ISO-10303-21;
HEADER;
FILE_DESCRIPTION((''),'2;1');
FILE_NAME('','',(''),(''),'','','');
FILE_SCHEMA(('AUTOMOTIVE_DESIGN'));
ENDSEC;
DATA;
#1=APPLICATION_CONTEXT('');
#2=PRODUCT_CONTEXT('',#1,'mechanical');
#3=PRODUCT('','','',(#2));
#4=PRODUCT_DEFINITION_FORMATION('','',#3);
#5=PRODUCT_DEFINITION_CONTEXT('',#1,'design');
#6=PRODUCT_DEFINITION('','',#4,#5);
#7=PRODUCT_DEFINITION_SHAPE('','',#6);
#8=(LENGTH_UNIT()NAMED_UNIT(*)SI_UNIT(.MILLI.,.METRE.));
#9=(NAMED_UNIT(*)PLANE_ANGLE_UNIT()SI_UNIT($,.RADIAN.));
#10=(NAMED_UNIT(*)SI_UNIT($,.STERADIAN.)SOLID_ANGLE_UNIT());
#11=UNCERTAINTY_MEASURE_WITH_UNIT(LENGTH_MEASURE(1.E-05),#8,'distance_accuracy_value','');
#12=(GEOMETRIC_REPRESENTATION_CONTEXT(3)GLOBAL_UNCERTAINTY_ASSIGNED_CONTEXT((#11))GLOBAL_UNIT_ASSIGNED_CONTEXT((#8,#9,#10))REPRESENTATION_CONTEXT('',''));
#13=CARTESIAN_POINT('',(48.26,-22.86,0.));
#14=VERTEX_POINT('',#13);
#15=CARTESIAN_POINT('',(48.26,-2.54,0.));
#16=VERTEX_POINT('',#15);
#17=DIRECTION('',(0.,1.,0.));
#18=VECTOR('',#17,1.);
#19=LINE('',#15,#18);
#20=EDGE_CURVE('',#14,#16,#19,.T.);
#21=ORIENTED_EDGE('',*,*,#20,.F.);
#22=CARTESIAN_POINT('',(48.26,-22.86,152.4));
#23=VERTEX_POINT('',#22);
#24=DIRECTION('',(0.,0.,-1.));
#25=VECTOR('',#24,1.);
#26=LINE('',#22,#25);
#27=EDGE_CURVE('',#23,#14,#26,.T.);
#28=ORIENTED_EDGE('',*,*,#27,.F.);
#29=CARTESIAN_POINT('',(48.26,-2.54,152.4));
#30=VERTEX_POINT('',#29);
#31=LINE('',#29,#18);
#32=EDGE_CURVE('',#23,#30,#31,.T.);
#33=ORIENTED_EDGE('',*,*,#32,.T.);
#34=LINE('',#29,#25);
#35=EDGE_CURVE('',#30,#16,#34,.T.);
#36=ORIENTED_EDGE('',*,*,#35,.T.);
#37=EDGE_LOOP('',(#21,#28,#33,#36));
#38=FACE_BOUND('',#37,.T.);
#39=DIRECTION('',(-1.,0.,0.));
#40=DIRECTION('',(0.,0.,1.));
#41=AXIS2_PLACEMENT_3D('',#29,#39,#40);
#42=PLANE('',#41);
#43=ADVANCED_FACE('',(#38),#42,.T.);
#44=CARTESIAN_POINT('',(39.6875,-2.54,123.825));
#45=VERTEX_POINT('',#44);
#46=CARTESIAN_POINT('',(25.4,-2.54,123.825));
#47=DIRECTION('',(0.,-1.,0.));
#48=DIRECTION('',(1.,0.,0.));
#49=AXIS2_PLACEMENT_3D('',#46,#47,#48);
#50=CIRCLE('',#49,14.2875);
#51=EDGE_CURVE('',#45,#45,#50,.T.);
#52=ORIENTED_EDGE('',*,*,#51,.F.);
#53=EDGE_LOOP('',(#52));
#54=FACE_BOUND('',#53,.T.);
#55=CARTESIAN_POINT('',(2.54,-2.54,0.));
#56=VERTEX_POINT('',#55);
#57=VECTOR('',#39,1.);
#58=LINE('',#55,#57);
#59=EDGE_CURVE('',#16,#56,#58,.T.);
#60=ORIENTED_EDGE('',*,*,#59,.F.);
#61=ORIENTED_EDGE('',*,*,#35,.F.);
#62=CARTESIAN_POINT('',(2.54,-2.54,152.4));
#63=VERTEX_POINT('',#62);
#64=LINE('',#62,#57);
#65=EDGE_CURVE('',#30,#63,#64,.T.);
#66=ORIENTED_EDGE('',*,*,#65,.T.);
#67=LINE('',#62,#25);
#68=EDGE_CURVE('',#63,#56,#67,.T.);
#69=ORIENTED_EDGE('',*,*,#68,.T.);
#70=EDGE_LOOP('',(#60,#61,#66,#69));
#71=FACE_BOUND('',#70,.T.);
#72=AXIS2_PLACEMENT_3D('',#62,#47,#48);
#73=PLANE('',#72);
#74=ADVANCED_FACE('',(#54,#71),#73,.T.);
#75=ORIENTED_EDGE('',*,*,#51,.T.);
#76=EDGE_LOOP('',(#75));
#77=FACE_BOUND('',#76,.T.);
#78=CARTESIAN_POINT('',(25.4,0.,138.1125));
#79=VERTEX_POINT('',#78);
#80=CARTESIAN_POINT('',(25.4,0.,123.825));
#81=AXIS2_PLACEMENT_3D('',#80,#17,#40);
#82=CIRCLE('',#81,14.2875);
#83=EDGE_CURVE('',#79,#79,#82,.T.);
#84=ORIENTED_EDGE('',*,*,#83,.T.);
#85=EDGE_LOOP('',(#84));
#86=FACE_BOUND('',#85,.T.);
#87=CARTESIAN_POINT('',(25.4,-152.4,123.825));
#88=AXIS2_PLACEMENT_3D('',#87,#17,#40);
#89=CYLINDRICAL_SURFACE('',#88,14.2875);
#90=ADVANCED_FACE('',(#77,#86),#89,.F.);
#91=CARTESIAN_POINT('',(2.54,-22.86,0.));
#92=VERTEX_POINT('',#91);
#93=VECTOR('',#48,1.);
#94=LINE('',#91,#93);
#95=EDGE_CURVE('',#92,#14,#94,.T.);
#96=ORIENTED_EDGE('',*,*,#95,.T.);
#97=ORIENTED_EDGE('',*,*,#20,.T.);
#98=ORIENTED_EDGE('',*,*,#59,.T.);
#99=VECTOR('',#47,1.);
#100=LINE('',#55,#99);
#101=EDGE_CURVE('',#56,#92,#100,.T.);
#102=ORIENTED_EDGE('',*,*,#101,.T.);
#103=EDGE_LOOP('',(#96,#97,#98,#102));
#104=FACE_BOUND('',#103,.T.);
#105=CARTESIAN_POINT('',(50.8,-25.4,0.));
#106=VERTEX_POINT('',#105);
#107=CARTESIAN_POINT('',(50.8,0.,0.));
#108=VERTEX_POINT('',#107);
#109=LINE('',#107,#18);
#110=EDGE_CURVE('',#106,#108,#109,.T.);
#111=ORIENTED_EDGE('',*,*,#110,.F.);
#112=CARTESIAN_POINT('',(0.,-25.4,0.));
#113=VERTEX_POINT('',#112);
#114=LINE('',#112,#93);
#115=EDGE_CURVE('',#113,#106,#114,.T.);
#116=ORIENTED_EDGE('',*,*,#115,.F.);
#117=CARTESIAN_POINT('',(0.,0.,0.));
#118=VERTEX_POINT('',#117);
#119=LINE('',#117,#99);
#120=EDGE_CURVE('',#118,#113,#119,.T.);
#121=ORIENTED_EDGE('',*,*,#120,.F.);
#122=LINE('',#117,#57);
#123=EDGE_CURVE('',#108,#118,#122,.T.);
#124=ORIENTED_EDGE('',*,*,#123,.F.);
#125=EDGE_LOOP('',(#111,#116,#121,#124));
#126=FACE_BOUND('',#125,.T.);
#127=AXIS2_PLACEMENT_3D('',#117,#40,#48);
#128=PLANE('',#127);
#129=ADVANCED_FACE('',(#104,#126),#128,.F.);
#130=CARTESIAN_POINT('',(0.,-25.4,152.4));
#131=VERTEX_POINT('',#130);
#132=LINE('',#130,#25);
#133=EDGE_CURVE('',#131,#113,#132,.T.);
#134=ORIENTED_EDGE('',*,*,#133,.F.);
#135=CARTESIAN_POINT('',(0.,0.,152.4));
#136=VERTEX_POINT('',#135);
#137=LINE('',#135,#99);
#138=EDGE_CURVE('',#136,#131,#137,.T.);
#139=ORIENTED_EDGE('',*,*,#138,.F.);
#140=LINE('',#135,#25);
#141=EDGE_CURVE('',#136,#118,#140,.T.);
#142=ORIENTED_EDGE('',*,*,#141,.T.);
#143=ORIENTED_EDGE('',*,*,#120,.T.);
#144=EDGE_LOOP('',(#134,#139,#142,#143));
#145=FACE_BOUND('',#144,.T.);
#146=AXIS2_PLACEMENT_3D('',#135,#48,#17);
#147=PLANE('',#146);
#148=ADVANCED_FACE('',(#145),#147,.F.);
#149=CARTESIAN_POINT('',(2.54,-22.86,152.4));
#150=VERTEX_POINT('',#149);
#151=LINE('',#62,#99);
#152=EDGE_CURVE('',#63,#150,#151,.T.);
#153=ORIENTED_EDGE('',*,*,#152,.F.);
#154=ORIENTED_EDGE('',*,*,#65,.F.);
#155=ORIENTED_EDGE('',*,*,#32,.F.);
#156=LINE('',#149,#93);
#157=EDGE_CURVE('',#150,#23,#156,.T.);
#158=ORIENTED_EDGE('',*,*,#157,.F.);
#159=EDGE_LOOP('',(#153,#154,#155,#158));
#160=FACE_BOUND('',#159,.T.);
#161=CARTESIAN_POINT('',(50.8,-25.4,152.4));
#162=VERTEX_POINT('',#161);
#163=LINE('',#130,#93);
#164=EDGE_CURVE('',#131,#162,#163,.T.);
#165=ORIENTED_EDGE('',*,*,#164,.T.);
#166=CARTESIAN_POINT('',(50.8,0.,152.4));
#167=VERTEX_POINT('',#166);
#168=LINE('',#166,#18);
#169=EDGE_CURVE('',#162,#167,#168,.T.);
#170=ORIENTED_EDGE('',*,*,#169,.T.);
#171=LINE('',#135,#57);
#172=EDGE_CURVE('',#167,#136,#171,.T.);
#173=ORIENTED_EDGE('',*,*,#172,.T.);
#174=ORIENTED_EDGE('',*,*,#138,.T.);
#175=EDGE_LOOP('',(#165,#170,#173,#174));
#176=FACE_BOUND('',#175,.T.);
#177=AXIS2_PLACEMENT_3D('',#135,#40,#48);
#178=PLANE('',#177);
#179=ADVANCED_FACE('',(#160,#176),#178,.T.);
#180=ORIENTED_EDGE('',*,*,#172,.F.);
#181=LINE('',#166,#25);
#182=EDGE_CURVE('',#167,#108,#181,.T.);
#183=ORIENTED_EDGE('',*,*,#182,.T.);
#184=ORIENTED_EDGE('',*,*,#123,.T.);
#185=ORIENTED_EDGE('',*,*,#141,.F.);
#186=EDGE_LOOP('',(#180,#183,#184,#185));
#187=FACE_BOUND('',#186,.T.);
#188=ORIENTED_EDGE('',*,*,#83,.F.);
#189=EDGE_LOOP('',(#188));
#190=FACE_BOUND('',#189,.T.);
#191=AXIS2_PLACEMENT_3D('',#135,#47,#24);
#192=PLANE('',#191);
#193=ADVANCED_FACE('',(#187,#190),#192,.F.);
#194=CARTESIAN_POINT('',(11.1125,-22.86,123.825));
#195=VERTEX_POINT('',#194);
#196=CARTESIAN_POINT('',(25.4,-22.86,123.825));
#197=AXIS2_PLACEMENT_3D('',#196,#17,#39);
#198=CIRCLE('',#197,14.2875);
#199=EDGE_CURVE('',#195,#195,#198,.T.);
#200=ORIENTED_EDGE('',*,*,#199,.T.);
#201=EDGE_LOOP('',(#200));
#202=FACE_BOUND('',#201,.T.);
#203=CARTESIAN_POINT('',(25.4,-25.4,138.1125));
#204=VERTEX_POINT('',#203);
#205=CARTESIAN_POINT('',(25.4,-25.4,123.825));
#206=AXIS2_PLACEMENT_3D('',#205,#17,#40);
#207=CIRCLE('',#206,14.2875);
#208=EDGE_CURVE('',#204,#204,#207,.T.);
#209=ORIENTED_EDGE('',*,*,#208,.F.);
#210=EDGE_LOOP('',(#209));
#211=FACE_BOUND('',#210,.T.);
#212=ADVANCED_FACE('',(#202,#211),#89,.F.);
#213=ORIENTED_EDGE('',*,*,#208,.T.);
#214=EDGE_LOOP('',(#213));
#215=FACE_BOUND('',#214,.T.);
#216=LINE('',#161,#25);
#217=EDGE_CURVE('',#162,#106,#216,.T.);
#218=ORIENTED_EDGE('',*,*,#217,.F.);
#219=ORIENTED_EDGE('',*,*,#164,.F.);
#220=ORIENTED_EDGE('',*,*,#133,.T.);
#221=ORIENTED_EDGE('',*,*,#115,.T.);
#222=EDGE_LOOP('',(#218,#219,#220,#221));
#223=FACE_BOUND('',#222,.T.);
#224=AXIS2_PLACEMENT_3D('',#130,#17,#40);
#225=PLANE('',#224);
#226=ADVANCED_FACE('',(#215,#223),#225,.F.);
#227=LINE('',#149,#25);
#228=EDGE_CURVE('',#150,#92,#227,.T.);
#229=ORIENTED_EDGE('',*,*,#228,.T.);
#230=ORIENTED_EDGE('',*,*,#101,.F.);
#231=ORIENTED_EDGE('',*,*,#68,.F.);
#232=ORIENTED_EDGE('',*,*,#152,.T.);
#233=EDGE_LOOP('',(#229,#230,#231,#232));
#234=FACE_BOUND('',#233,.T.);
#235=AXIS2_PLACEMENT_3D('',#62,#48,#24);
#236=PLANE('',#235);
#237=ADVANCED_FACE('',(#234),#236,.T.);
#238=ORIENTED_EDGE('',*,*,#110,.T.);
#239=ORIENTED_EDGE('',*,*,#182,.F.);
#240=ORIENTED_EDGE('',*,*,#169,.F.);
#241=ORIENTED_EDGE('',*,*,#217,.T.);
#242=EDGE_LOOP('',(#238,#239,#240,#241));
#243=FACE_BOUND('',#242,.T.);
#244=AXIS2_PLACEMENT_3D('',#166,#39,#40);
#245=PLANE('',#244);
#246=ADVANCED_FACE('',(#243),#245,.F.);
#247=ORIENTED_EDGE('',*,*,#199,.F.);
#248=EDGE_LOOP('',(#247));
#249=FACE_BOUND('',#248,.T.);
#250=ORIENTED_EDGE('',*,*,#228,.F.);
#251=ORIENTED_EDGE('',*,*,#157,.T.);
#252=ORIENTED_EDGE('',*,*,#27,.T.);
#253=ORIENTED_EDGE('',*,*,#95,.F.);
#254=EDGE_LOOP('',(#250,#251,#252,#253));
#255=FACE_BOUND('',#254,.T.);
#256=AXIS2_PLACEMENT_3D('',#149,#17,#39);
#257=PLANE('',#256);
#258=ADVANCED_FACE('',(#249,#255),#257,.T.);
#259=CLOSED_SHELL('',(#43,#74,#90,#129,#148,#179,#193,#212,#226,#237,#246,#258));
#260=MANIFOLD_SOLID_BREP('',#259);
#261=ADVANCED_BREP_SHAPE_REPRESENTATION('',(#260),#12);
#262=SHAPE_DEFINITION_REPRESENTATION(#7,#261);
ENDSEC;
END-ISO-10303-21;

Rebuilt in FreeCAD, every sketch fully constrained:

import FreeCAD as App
import Part
import Sketcher
from FreeCAD import Vector
Q = App.Units.Quantity

doc = App.newDocument("Part")
body = doc.addObject("PartDesign::Body", "Body")

# Sketch on XY plane
sketch1 = body.newObject("Sketcher::SketchObject", "Sketch")
sketch1.AttachmentSupport = (doc.getObject("XY_Plane"), [""])
sketch1.MapMode = "FlatFace"
sketch1.addGeometry(Part.LineSegment(Vector(0, 0, 0), Vector(0, -25.4, 0)), False)
sketch1.addGeometry(Part.LineSegment(Vector(0, -25.4, 0), Vector(50.8, -25.4, 0)), False)
sketch1.addGeometry(Part.LineSegment(Vector(50.8, -25.4, 0), Vector(50.8, 0, 0)), False)
sketch1.addGeometry(Part.LineSegment(Vector(50.8, 0, 0), Vector(0, 0, 0)), False)
sketch1.addGeometry(Part.LineSegment(Vector(48.26, -22.86, 0), Vector(2.54, -22.86, 0)), False)
sketch1.addGeometry(Part.LineSegment(Vector(2.54, -22.86, 0), Vector(2.54, -2.54, 0)), False)
sketch1.addGeometry(Part.LineSegment(Vector(2.54, -2.54, 0), Vector(48.26, -2.54, 0)), False)
sketch1.addGeometry(Part.LineSegment(Vector(48.26, -2.54, 0), Vector(48.26, -22.86, 0)), False)
sketch1.addConstraint(Sketcher.Constraint("Coincident", 0, 2, 1, 1))
sketch1.addConstraint(Sketcher.Constraint("Coincident", 1, 2, 2, 1))
sketch1.addConstraint(Sketcher.Constraint("Coincident", 2, 2, 3, 1))
sketch1.addConstraint(Sketcher.Constraint("Coincident", 3, 2, 0, 1))
sketch1.addConstraint(Sketcher.Constraint("Coincident", 4, 2, 5, 1))
sketch1.addConstraint(Sketcher.Constraint("Coincident", 5, 2, 6, 1))
sketch1.addConstraint(Sketcher.Constraint("Coincident", 6, 2, 7, 1))
sketch1.addConstraint(Sketcher.Constraint("Coincident", 7, 2, 4, 1))
sketch1.addConstraint(Sketcher.Constraint("Vertical", 0))
sketch1.addConstraint(Sketcher.Constraint("Horizontal", 1))
sketch1.addConstraint(Sketcher.Constraint("Vertical", 2))
sketch1.addConstraint(Sketcher.Constraint("Horizontal", 3))
sketch1.addConstraint(Sketcher.Constraint("Horizontal", 4))
sketch1.addConstraint(Sketcher.Constraint("Vertical", 5))
sketch1.addConstraint(Sketcher.Constraint("Horizontal", 6))
sketch1.addConstraint(Sketcher.Constraint("Vertical", 7))
sketch1.addConstraint(Sketcher.Constraint("Coincident", 3, 2, -1, 1))
sketch1.addConstraint(Sketcher.Constraint("DistanceX", 1, 1, 1, 2, Q("2 in")))
sketch1.addConstraint(Sketcher.Constraint("DistanceY", 0, 2, 0, 1, Q("1 in")))
sketch1.addConstraint(Sketcher.Constraint("DistanceX", 4, 2, 4, 1, Q("1.8 in")))
sketch1.addConstraint(Sketcher.Constraint("DistanceY", 5, 1, 5, 2, Q("0.8 in")))
sketch1.addConstraint(Sketcher.Constraint("DistanceX", -1, 1, 4, 2, Q("0.1 in")))
sketch1.addConstraint(Sketcher.Constraint("DistanceY", 4, 2, -1, 1, Q("0.9 in")))
pad1 = body.newObject("PartDesign::Pad", "Pad")
pad1.Profile = sketch1
pad1.Length = Q("6 in")

# Sketch on XZ plane
sketch2 = body.newObject("Sketcher::SketchObject", "Sketch001")
sketch2.AttachmentSupport = (doc.getObject("XZ_Plane"), [""])
sketch2.MapMode = "FlatFace"
sketch2.addGeometry(Part.Circle(Vector(25.4, 123.825, 0), Vector(0, 0, 1), 14.2875), False)
sketch2.addConstraint(Sketcher.Constraint("Diameter", 0, Q("1.125 in")))
sketch2.addConstraint(Sketcher.Constraint("DistanceX", -1, 1, 0, 3, Q("1 in")))
sketch2.addConstraint(Sketcher.Constraint("DistanceY", -1, 1, 0, 3, Q("4.875 in")))
pocket1 = body.newObject("PartDesign::Pocket", "Pocket")
pocket1.Profile = sketch2
pocket1.Length = Q("6 in")
pocket1.Reversed = True

doc.recompute()
